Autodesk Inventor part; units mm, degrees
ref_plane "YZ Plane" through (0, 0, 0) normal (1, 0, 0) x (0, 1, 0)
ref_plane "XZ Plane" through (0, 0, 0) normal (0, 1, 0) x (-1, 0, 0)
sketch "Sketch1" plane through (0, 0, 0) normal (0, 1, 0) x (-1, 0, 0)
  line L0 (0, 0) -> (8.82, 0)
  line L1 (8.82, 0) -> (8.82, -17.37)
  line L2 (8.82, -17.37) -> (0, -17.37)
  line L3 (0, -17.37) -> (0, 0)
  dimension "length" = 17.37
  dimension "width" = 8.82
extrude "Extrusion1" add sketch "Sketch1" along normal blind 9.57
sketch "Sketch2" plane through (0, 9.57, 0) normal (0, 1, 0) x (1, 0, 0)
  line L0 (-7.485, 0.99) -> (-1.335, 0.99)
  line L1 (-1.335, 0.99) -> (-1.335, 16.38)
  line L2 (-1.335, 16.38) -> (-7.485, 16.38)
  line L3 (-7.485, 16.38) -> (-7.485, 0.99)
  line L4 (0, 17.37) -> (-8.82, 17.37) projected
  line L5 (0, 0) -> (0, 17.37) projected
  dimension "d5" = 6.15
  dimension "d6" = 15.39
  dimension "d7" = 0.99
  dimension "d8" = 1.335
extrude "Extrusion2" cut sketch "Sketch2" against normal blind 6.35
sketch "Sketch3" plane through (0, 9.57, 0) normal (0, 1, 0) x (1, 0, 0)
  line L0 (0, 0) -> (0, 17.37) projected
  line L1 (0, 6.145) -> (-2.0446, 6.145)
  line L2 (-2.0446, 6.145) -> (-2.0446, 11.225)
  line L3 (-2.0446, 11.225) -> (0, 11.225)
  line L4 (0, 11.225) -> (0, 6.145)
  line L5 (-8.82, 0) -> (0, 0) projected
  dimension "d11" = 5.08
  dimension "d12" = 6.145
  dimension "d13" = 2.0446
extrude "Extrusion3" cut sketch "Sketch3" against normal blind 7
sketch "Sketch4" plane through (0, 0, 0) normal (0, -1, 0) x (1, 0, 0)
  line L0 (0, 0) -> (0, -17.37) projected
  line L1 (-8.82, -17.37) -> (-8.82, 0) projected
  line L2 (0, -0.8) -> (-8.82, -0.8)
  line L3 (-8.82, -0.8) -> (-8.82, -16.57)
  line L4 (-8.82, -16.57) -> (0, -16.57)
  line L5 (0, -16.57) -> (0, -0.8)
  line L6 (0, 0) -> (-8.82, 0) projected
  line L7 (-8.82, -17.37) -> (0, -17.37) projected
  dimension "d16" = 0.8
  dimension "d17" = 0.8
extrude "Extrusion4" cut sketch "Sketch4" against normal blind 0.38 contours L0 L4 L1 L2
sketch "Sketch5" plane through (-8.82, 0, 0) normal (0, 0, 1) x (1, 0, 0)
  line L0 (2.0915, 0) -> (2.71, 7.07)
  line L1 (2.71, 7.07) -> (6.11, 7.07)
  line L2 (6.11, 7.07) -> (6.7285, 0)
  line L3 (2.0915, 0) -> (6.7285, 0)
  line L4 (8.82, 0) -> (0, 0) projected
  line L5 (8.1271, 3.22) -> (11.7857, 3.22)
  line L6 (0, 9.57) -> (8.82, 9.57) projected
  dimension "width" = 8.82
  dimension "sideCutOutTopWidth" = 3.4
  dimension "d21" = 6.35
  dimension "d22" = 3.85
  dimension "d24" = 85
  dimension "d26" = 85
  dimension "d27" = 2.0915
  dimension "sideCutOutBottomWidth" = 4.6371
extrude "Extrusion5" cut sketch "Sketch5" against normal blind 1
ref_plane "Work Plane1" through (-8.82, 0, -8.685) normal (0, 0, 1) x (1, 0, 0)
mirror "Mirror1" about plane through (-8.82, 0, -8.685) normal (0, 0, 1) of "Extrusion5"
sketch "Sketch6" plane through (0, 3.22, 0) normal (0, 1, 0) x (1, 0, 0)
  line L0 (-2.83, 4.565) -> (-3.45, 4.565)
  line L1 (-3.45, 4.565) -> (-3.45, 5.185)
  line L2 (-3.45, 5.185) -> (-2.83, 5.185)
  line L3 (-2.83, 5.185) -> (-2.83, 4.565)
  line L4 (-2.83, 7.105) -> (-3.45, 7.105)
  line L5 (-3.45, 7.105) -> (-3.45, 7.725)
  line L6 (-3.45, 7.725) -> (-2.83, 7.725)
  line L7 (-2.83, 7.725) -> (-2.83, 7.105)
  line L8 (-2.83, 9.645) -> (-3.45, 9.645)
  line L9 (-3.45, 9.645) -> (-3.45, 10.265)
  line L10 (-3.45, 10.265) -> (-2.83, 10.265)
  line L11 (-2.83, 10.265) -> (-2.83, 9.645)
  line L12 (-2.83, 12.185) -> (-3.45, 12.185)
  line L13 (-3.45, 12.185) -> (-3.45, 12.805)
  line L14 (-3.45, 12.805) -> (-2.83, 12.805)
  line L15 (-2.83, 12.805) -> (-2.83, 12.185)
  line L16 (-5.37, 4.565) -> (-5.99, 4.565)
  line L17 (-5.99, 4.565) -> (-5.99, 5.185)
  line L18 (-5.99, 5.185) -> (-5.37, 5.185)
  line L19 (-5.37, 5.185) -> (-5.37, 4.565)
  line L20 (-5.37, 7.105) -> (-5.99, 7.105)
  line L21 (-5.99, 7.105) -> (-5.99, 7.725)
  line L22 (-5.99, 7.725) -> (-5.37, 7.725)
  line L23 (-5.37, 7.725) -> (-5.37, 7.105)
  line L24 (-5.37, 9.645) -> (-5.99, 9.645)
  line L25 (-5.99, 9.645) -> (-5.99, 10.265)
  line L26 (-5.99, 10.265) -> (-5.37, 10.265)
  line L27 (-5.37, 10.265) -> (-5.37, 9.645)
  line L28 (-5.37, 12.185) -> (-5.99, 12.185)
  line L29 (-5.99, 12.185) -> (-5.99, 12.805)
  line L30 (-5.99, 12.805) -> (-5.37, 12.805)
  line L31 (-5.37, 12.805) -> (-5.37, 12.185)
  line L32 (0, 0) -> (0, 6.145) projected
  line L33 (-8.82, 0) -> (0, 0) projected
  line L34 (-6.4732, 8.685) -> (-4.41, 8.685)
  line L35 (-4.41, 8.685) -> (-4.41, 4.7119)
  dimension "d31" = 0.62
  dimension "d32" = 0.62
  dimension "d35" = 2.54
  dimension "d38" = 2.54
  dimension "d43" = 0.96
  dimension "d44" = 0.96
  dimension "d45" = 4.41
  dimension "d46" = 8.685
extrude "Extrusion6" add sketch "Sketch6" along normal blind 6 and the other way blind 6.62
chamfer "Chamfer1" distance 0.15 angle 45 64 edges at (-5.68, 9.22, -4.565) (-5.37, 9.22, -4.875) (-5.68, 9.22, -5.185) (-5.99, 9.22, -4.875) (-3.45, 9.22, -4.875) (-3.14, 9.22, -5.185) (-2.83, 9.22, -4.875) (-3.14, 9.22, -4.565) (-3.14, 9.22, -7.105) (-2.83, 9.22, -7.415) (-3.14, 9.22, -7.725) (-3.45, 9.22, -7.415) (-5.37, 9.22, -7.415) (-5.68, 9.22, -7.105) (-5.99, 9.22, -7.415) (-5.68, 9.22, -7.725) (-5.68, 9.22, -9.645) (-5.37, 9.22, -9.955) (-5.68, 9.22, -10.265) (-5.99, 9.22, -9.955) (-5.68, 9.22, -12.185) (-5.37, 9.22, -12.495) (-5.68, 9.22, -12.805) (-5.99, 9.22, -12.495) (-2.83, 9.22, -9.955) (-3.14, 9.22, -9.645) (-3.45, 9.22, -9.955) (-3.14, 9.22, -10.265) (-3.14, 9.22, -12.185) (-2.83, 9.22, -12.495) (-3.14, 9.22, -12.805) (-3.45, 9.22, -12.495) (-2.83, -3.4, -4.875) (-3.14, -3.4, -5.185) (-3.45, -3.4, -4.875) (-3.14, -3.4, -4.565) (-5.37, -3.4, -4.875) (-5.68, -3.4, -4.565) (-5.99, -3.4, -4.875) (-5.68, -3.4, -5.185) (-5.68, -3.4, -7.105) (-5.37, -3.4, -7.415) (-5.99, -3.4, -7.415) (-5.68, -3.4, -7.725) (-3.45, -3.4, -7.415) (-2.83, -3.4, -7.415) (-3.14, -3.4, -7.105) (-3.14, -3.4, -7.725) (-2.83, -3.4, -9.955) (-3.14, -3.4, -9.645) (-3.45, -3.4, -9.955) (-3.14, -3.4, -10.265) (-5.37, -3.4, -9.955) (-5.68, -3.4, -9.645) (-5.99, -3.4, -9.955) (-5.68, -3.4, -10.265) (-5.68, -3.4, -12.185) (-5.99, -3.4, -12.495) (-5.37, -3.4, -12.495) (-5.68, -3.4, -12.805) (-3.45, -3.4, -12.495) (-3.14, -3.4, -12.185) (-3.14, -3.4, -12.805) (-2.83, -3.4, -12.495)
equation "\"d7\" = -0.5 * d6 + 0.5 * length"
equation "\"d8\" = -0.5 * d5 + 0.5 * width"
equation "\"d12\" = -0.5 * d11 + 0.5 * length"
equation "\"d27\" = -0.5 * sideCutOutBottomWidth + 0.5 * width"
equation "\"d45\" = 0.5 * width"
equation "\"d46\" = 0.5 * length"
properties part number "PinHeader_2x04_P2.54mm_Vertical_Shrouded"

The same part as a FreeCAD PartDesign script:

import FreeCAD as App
import Part
import Sketcher

V = App.Vector
Q = App.Units.Quantity


def edges_at(feature, points):
    """Names of the edges that pass closest to the given points."""
    edges = feature.Shape.Edges
    near = lambda p: min(range(len(edges)), key=lambda i: edges[i].distToShape(Part.Vertex(*p))[0])
    return sorted({f"Edge{near(p) + 1}" for p in points})

doc = App.newDocument("Part")
body = doc.addObject("PartDesign::Body", "Body")

# Sketch on XZ plane
sketch1 = body.newObject("Sketcher::SketchObject", "Sketch")
sketch1.AttachmentSupport = (doc.getObject("XZ_Plane"), [""])
sketch1.MapMode = "FlatFace"
sketch1.addGeometry([
    Part.LineSegment(V(-8.82, 0, 0), V(0, 0, 0)),
    Part.LineSegment(V(0, 0, 0), V(0, -17.37, 0)),
    Part.LineSegment(V(0, -17.37, 0), V(-8.82, -17.37, 0)),
    Part.LineSegment(V(-8.82, -17.37, 0), V(-8.82, 0, 0)),
], False)
sketch1.addConstraint([
    Sketcher.Constraint("Coincident", 0, 2, 1, 1),
    Sketcher.Constraint("Coincident", 1, 2, 2, 1),
    Sketcher.Constraint("Coincident", 2, 2, 3, 1),
    Sketcher.Constraint("Coincident", 3, 2, 0, 1),
    Sketcher.Constraint("Horizontal", 0),
    Sketcher.Constraint("Vertical", 1),
    Sketcher.Constraint("Horizontal", 2),
    Sketcher.Constraint("Vertical", 3),
    Sketcher.Constraint("Coincident", 0, 2, -1, 1),
    Sketcher.Constraint("DistanceX", 0, 1, 0, 2, 8.82),
    Sketcher.Constraint("DistanceY", 1, 2, 1, 1, 17.37),
])
pad1 = body.newObject("PartDesign::Pad", "Pad")
pad1.Profile = sketch1
pad1.Length = 9.57
pad1.Reversed = True

# Sketch on XZ plane
sketch2 = body.newObject("Sketcher::SketchObject", "Sketch001")
sketch2.AttachmentSupport = (doc.getObject("XZ_Plane"), [""])
sketch2.MapMode = "FlatFace"
sketch2.AttachmentOffset = App.Placement(V(0, 0, -9.57), App.Rotation())
sketch2.addGeometry([
    Part.LineSegment(V(-7.485, -16.38, 0), V(-7.485, -0.99, 0)),
    Part.LineSegment(V(-7.485, -0.99, 0), V(-1.335, -0.99, 0)),
    Part.LineSegment(V(-1.335, -0.99, 0), V(-1.335, -16.38, 0)),
    Part.LineSegment(V(-1.335, -16.38, 0), V(-7.485, -16.38, 0)),
], False)
sketch2.addConstraint([
    Sketcher.Constraint("Coincident", 0, 2, 1, 1),
    Sketcher.Constraint("Coincident", 1, 2, 2, 1),
    Sketcher.Constraint("Coincident", 2, 2, 3, 1),
    Sketcher.Constraint("Coincident", 3, 2, 0, 1),
    Sketcher.Constraint("Vertical", 0),
    Sketcher.Constraint("Horizontal", 1),
    Sketcher.Constraint("Vertical", 2),
    Sketcher.Constraint("Horizontal", 3),
    Sketcher.Constraint("DistanceX", 1, 1, 1, 2, 6.15),
    Sketcher.Constraint("DistanceY", 0, 1, 0, 2, 15.39),
    Sketcher.Constraint("DistanceY", 0, 2, -1, 1, 0.99),
    Sketcher.Constraint("DistanceX", 1, 2, -1, 1, 1.335),
])
pocket1 = body.newObject("PartDesign::Pocket", "Pocket")
pocket1.Profile = sketch2
pocket1.Length = 6.35
pocket1.Reversed = True

# Sketch on XZ plane
sketch3 = body.newObject("Sketcher::SketchObject", "Sketch002")
sketch3.AttachmentSupport = (doc.getObject("XZ_Plane"), [""])
sketch3.MapMode = "FlatFace"
sketch3.AttachmentOffset = App.Placement(V(0, 0, -9.57), App.Rotation())
sketch3.addGeometry([
    Part.LineSegment(V(-2.0446, -6.145, 0), V(0, -6.145, 0)),
    Part.LineSegment(V(0, -6.145, 0), V(0, -11.225, 0)),
    Part.LineSegment(V(0, -11.225, 0), V(-2.0446, -11.225, 0)),
    Part.LineSegment(V(-2.0446, -11.225, 0), V(-2.0446, -6.145, 0)),
], False)
sketch3.addConstraint([
    Sketcher.Constraint("Coincident", 0, 2, 1, 1),
    Sketcher.Constraint("Coincident", 1, 2, 2, 1),
    Sketcher.Constraint("Coincident", 2, 2, 3, 1),
    Sketcher.Constraint("Coincident", 3, 2, 0, 1),
    Sketcher.Constraint("Horizontal", 0),
    Sketcher.Constraint("Vertical", 1),
    Sketcher.Constraint("Horizontal", 2),
    Sketcher.Constraint("Vertical", 3),
    Sketcher.Constraint("PointOnObject", 0, 2, -2),
    Sketcher.Constraint("DistanceY", 1, 2, 1, 1, 5.08),
    Sketcher.Constraint("DistanceX", 0, 1, 0, 2, 2.0446),
    Sketcher.Constraint("DistanceY", 0, 2, -1, 1, 6.145),
])
pocket2 = body.newObject("PartDesign::Pocket", "Pocket001")
pocket2.Profile = sketch3
pocket2.Length = 7
pocket2.Reversed = True

# Sketch on XZ plane
sketch4 = body.newObject("Sketcher::SketchObject", "Sketch003")
sketch4.AttachmentSupport = (doc.getObject("XZ_Plane"), [""])
sketch4.MapMode = "FlatFace"
sketch4.addGeometry([
    Part.LineSegment(V(0, -16.57, 0), V(0, -0.8, 0)),
    Part.LineSegment(V(0, -0.8, 0), V(-8.82, -0.8, 0)),
    Part.LineSegment(V(-8.82, -0.8, 0), V(-8.82, -16.57, 0)),
    Part.LineSegment(V(-8.82, -16.57, 0), V(0, -16.57, 0)),
], False)
sketch4.addConstraint([
    Sketcher.Constraint("Coincident", 0, 2, 1, 1),
    Sketcher.Constraint("Coincident", 1, 2, 2, 1),
    Sketcher.Constraint("Coincident", 2, 2, 3, 1),
    Sketcher.Constraint("Coincident", 3, 2, 0, 1),
    Sketcher.Constraint("Vertical", 0),
    Sketcher.Constraint("Horizontal", 1),
    Sketcher.Constraint("Vertical", 2),
    Sketcher.Constraint("Horizontal", 3),
    Sketcher.Constraint("PointOnObject", 0, 2, -2),
    Sketcher.Constraint("DistanceY", 0, 2, -1, 1, 0.8),
    Sketcher.Constraint("DistanceX", 1, 2, 1, 1, 8.82),
    Sketcher.Constraint("DistanceY", 0, 1, 0, 2, 15.77),
])
pocket3 = body.newObject("PartDesign::Pocket", "Pocket002")
pocket3.Profile = sketch4
pocket3.Length = 0.38

# Sketch on XY plane
sketch5 = body.newObject("Sketcher::SketchObject", "Sketch004")
sketch5.AttachmentSupport = (doc.getObject("XY_Plane"), [""])
sketch5.MapMode = "FlatFace"
sketch5.addGeometry([
    Part.LineSegment(V(-6.11, 7.07, 0), V(-6.7285, 0, 0)),
    Part.LineSegment(V(-6.7285, 0, 0), V(-2.0915, 0, 0)),
    Part.LineSegment(V(-2.0915, 0, 0), V(-2.71, 7.07, 0)),
    Part.LineSegment(V(-2.71, 7.07, 0), V(-6.11, 7.07, 0)),
], False)
sketch5.addConstraint([
    Sketcher.Constraint("Coincident", 0, 2, 1, 1),
    Sketcher.Constraint("Coincident", 1, 2, 2, 1),
    Sketcher.Constraint("Coincident", 2, 2, 3, 1),
    Sketcher.Constraint("Coincident", 3, 2, 0, 1),
    Sketcher.Constraint("Horizontal", 1),
    Sketcher.Constraint("Horizontal", 3),
    Sketcher.Constraint("PointOnObject", 0, 2, -1),
    Sketcher.Constraint("Equal", 0, 2),
    Sketcher.Constraint("DistanceX", 3, 2, 3, 1, 3.4),
    Sketcher.Constraint("DistanceX", 1, 1, 1, 2, 4.637),
    Sketcher.Constraint("Angle", 0, Q("-94.9996 deg")),
    Sketcher.Constraint("DistanceX", 1, 2, -1, 1, 2.0915),
])
pocket4 = body.newObject("PartDesign::Pocket", "Pocket003")
pocket4.Profile = sketch5
pocket4.Length = 1
doc.recompute()

datumplane = body.newObject("PartDesign::Plane", "DatumPlane")
datumplane.AttachmentSupport = (doc.getObject("XY_Plane"), [""])
datumplane.MapMode = "FlatFace"
datumplane.AttachmentOffset = App.Placement(V(0, 0, -8.685), App.Rotation())
mirrored = body.newObject("PartDesign::Mirrored", "Mirrored")
mirrored.Originals = [pocket4]
mirrored.MirrorPlane = (datumplane, [""])
body.Tip = mirrored

# Sketch on XZ plane
sketch6 = body.newObject("Sketcher::SketchObject", "Sketch005")
sketch6.AttachmentSupport = (doc.getObject("XZ_Plane"), [""])
sketch6.MapMode = "FlatFace"
sketch6.AttachmentOffset = App.Placement(V(0, 0, -3.22), App.Rotation())
sketch6.addGeometry([
    Part.LineSegment(V(-3.45, -4.565, 0), V(-2.83, -4.565, 0)),  # 0
    Part.LineSegment(V(-2.83, -4.565, 0), V(-2.83, -5.185, 0)),  # 1
    Part.LineSegment(V(-2.83, -5.185, 0), V(-3.45, -5.185, 0)),  # 2
    Part.LineSegment(V(-3.45, -5.185, 0), V(-3.45, -4.565, 0)),  # 3
    Part.LineSegment(V(-3.45, -7.105, 0), V(-2.83, -7.105, 0)),  # 4
    Part.LineSegment(V(-2.83, -7.105, 0), V(-2.83, -7.725, 0)),  # 5
    Part.LineSegment(V(-2.83, -7.725, 0), V(-3.45, -7.725, 0)),  # 6
    Part.LineSegment(V(-3.45, -7.725, 0), V(-3.45, -7.105, 0)),  # 7
    Part.LineSegment(V(-3.45, -9.645, 0), V(-2.83, -9.645, 0)),  # 8
    Part.LineSegment(V(-2.83, -9.645, 0), V(-2.83, -10.265, 0)),  # 9
    Part.LineSegment(V(-2.83, -10.265, 0), V(-3.45, -10.265, 0)),  # 10
    Part.LineSegment(V(-3.45, -10.265, 0), V(-3.45, -9.645, 0)),  # 11
    Part.LineSegment(V(-3.45, -12.185, 0), V(-2.83, -12.185, 0)),  # 12
    Part.LineSegment(V(-2.83, -12.185, 0), V(-2.83, -12.805, 0)),  # 13
    Part.LineSegment(V(-2.83, -12.805, 0), V(-3.45, -12.805, 0)),  # 14
    Part.LineSegment(V(-3.45, -12.805, 0), V(-3.45, -12.185, 0)),  # 15
    Part.LineSegment(V(-5.99, -4.565, 0), V(-5.37, -4.565, 0)),  # 16
    Part.LineSegment(V(-5.37, -4.565, 0), V(-5.37, -5.185, 0)),  # 17
    Part.LineSegment(V(-5.37, -5.185, 0), V(-5.99, -5.185, 0)),  # 18
    Part.LineSegment(V(-5.99, -5.185, 0), V(-5.99, -4.565, 0)),  # 19
    Part.LineSegment(V(-5.99, -7.105, 0), V(-5.37, -7.105, 0)),  # 20
    Part.LineSegment(V(-5.37, -7.105, 0), V(-5.37, -7.725, 0)),  # 21
    Part.LineSegment(V(-5.37, -7.725, 0), V(-5.99, -7.725, 0)),  # 22
    Part.LineSegment(V(-5.99, -7.725, 0), V(-5.99, -7.105, 0)),  # 23
    Part.LineSegment(V(-5.99, -9.645, 0), V(-5.37, -9.645, 0)),  # 24
    Part.LineSegment(V(-5.37, -9.645, 0), V(-5.37, -10.265, 0)),  # 25
    Part.LineSegment(V(-5.37, -10.265, 0), V(-5.99, -10.265, 0)),  # 26
    Part.LineSegment(V(-5.99, -10.265, 0), V(-5.99, -9.645, 0)),  # 27
    Part.LineSegment(V(-5.99, -12.185, 0), V(-5.37, -12.185, 0)),  # 28
    Part.LineSegment(V(-5.37, -12.185, 0), V(-5.37, -12.805, 0)),  # 29
    Part.LineSegment(V(-5.37, -12.805, 0), V(-5.99, -12.805, 0)),  # 30
    Part.LineSegment(V(-5.99, -12.805, 0), V(-5.99, -12.185, 0)),  # 31
], False)
sketch6.addConstraint([
    Sketcher.Constraint("Coincident", 0, 2, 1, 1),
    Sketcher.Constraint("Coincident", 1, 2, 2, 1),
    Sketcher.Constraint("Coincident", 2, 2, 3, 1),
    Sketcher.Constraint("Coincident", 3, 2, 0, 1),
    Sketcher.Constraint("Coincident", 4, 2, 5, 1),
    Sketcher.Constraint("Coincident", 5, 2, 6, 1),
    Sketcher.Constraint("Coincident", 6, 2, 7, 1),
    Sketcher.Constraint("Coincident", 7, 2, 4, 1),
    Sketcher.Constraint("Coincident", 8, 2, 9, 1),
    Sketcher.Constraint("Coincident", 9, 2, 10, 1),
    Sketcher.Constraint("Coincident", 10, 2, 11, 1),
    Sketcher.Constraint("Coincident", 11, 2, 8, 1),
    Sketcher.Constraint("Coincident", 12, 2, 13, 1),
    Sketcher.Constraint("Coincident", 13, 2, 14, 1),
    Sketcher.Constraint("Coincident", 14, 2, 15, 1),
    Sketcher.Constraint("Coincident", 15, 2, 12, 1),
    Sketcher.Constraint("Coincident", 16, 2, 17, 1),
    Sketcher.Constraint("Coincident", 17, 2, 18, 1),
    Sketcher.Constraint("Coincident", 18, 2, 19, 1),
    Sketcher.Constraint("Coincident", 19, 2, 16, 1),
    Sketcher.Constraint("Coincident", 20, 2, 21, 1),
    Sketcher.Constraint("Coincident", 21, 2, 22, 1),
    Sketcher.Constraint("Coincident", 22, 2, 23, 1),
    Sketcher.Constraint("Coincident", 23, 2, 20, 1),
    Sketcher.Constraint("Coincident", 24, 2, 25, 1),
    Sketcher.Constraint("Coincident", 25, 2, 26, 1),
    Sketcher.Constraint("Coincident", 26, 2, 27, 1),
    Sketcher.Constraint("Coincident", 27, 2, 24, 1),
    Sketcher.Constraint("Coincident", 28, 2, 29, 1),
    Sketcher.Constraint("Coincident", 29, 2, 30, 1),
    Sketcher.Constraint("Coincident", 30, 2, 31, 1),
    Sketcher.Constraint("Coincident", 31, 2, 28, 1),
    Sketcher.Constraint("Horizontal", 0),
    Sketcher.Constraint("Vertical", 1),
    Sketcher.Constraint("Horizontal", 2),
    Sketcher.Constraint("Vertical", 3),
    Sketcher.Constraint("Horizontal", 4),
    Sketcher.Constraint("Vertical", 5),
    Sketcher.Constraint("Horizontal", 6),
    Sketcher.Constraint("Vertical", 7),
    Sketcher.Constraint("Horizontal", 8),
    Sketcher.Constraint("Vertical", 9),
    Sketcher.Constraint("Horizontal", 10),
    Sketcher.Constraint("Vertical", 11),
    Sketcher.Constraint("Horizontal", 12),
    Sketcher.Constraint("Vertical", 13),
    Sketcher.Constraint("Horizontal", 14),
    Sketcher.Constraint("Vertical", 15),
    Sketcher.Constraint("Horizontal", 16),
    Sketcher.Constraint("Vertical", 17),
    Sketcher.Constraint("Horizontal", 18),
    Sketcher.Constraint("Vertical", 19),
    Sketcher.Constraint("Horizontal", 20),
    Sketcher.Constraint("Vertical", 21),
    Sketcher.Constraint("Horizontal", 22),
    Sketcher.Constraint("Vertical", 23),
    Sketcher.Constraint("Horizontal", 24),
    Sketcher.Constraint("Vertical", 25),
    Sketcher.Constraint("Horizontal", 26),
    Sketcher.Constraint("Vertical", 27),
    Sketcher.Constraint("Horizontal", 28),
    Sketcher.Constraint("Vertical", 29),
    Sketcher.Constraint("Horizontal", 30),
    Sketcher.Constraint("Vertical", 31),
    Sketcher.Constraint("Horizontal", 3, 2, 16, 2),
    Sketcher.Constraint("Horizontal", 2, 2, 17, 2),
    Sketcher.Constraint("Horizontal", 7, 2, 20, 2),
    Sketcher.Constraint("Horizontal", 6, 2, 21, 2),
    Sketcher.Constraint("Horizontal", 11, 2, 24, 2),
    Sketcher.Constraint("Horizontal", 10, 2, 25, 2),
    Sketcher.Constraint("Horizontal", 15, 2, 28, 2),
    Sketcher.Constraint("Horizontal", 14, 2, 29, 2),
    Sketcher.Constraint("Vertical", 1, 2, 4, 2),
    Sketcher.Constraint("Vertical", 3, 2, 6, 2),
    Sketcher.Constraint("Vertical", 5, 2, 8, 2),
    Sketcher.Constraint("Vertical", 7, 2, 10, 2),
    Sketcher.Constraint("Vertical", 9, 2, 12, 2),
    Sketcher.Constraint("Vertical", 11, 2, 14, 2),
    Sketcher.Constraint("Vertical", 17, 2, 20, 2),
    Sketcher.Constraint("Vertical", 19, 2, 22, 2),
    Sketcher.Constraint("Vertical", 21, 2, 24, 2),
    Sketcher.Constraint("Vertical", 23, 2, 26, 2),
    Sketcher.Constraint("Vertical", 25, 2, 28, 2),
    Sketcher.Constraint("Vertical", 27, 2, 30, 2),
    Sketcher.Constraint("Equal", 14, 16),
    Sketcher.Constraint("Equal", 30, 1),
    Sketcher.Constraint("Equal", 3, 5),
    Sketcher.Constraint("Equal", 7, 9),
    Sketcher.Constraint("Equal", 11, 13),
    Sketcher.Constraint("DistanceX", 0, 1, 0, 2, 0.62),
    Sketcher.Constraint("DistanceY", 4, 2, 0, 2, 2.54),
    Sketcher.Constraint("DistanceY", 8, 2, 4, 2, 2.54),
    Sketcher.Constraint("DistanceY", 12, 2, 8, 2, 2.54),
    Sketcher.Constraint("DistanceX", 16, 2, 0, 2, 2.54),
    Sketcher.Constraint("DistanceX", 0, 2, -1, 1, 2.83),
    Sketcher.Constraint("DistanceY", 0, 2, -1, 1, 4.565),
])
pad2 = body.newObject("PartDesign::Pad", "Pad001")
pad2.Profile = sketch6
pad2.Type = "TwoLengths"
pad2.Length = 6
pad2.Length2 = 6.62
pad2.Reversed = True
doc.recompute()

chamfer = body.newObject("PartDesign::Chamfer", "Chamfer")
chamfer.Base = (pad2, edges_at(pad2, [
    (-5.68, 9.22, -4.565),
    (-5.37, 9.22, -4.875),
    (-5.68, 9.22, -5.185),
    (-5.99, 9.22, -4.875),
    (-3.45, 9.22, -4.875),
    (-3.14, 9.22, -5.185),
    (-2.83, 9.22, -4.875),
    (-3.14, 9.22, -4.565),
    (-3.14, 9.22, -7.105),
    (-2.83, 9.22, -7.415),
    (-3.14, 9.22, -7.725),
    (-3.45, 9.22, -7.415),
    (-5.37, 9.22, -7.415),
    (-5.68, 9.22, -7.105),
    (-5.99, 9.22, -7.415),
    (-5.68, 9.22, -7.725),
    (-5.68, 9.22, -9.645),
    (-5.37, 9.22, -9.955),
    (-5.68, 9.22, -10.265),
    (-5.99, 9.22, -9.955),
    (-5.68, 9.22, -12.185),
    (-5.37, 9.22, -12.495),
    (-5.68, 9.22, -12.805),
    (-5.99, 9.22, -12.495),
    (-2.83, 9.22, -9.955),
    (-3.14, 9.22, -9.645),
    (-3.45, 9.22, -9.955),
    (-3.14, 9.22, -10.265),
    (-3.14, 9.22, -12.185),
    (-2.83, 9.22, -12.495),
    (-3.14, 9.22, -12.805),
    (-3.45, 9.22, -12.495),
    (-2.83, -3.4, -4.875),
    (-3.14, -3.4, -5.185),
    (-3.45, -3.4, -4.875),
    (-3.14, -3.4, -4.565),
    (-5.37, -3.4, -4.875),
    (-5.68, -3.4, -4.565),
    (-5.99, -3.4, -4.875),
    (-5.68, -3.4, -5.185),
    (-5.68, -3.4, -7.105),
    (-5.37, -3.4, -7.415),
    (-5.99, -3.4, -7.415),
    (-5.68, -3.4, -7.725),
    (-3.45, -3.4, -7.415),
    (-2.83, -3.4, -7.415),
    (-3.14, -3.4, -7.105),
    (-3.14, -3.4, -7.725),
    (-2.83, -3.4, -9.955),
    (-3.14, -3.4, -9.645),
    (-3.45, -3.4, -9.955),
    (-3.14, -3.4, -10.265),
    (-5.37, -3.4, -9.955),
    (-5.68, -3.4, -9.645),
    (-5.99, -3.4, -9.955),
    (-5.68, -3.4, -10.265),
    (-5.68, -3.4, -12.185),
    (-5.99, -3.4, -12.495),
    (-5.37, -3.4, -12.495),
    (-5.68, -3.4, -12.805),
    (-3.45, -3.4, -12.495),
    (-3.14, -3.4, -12.185),
    (-3.14, -3.4, -12.805),
    (-2.83, -3.4, -12.495),
]))
chamfer.Size = 0.15

doc.recompute()
